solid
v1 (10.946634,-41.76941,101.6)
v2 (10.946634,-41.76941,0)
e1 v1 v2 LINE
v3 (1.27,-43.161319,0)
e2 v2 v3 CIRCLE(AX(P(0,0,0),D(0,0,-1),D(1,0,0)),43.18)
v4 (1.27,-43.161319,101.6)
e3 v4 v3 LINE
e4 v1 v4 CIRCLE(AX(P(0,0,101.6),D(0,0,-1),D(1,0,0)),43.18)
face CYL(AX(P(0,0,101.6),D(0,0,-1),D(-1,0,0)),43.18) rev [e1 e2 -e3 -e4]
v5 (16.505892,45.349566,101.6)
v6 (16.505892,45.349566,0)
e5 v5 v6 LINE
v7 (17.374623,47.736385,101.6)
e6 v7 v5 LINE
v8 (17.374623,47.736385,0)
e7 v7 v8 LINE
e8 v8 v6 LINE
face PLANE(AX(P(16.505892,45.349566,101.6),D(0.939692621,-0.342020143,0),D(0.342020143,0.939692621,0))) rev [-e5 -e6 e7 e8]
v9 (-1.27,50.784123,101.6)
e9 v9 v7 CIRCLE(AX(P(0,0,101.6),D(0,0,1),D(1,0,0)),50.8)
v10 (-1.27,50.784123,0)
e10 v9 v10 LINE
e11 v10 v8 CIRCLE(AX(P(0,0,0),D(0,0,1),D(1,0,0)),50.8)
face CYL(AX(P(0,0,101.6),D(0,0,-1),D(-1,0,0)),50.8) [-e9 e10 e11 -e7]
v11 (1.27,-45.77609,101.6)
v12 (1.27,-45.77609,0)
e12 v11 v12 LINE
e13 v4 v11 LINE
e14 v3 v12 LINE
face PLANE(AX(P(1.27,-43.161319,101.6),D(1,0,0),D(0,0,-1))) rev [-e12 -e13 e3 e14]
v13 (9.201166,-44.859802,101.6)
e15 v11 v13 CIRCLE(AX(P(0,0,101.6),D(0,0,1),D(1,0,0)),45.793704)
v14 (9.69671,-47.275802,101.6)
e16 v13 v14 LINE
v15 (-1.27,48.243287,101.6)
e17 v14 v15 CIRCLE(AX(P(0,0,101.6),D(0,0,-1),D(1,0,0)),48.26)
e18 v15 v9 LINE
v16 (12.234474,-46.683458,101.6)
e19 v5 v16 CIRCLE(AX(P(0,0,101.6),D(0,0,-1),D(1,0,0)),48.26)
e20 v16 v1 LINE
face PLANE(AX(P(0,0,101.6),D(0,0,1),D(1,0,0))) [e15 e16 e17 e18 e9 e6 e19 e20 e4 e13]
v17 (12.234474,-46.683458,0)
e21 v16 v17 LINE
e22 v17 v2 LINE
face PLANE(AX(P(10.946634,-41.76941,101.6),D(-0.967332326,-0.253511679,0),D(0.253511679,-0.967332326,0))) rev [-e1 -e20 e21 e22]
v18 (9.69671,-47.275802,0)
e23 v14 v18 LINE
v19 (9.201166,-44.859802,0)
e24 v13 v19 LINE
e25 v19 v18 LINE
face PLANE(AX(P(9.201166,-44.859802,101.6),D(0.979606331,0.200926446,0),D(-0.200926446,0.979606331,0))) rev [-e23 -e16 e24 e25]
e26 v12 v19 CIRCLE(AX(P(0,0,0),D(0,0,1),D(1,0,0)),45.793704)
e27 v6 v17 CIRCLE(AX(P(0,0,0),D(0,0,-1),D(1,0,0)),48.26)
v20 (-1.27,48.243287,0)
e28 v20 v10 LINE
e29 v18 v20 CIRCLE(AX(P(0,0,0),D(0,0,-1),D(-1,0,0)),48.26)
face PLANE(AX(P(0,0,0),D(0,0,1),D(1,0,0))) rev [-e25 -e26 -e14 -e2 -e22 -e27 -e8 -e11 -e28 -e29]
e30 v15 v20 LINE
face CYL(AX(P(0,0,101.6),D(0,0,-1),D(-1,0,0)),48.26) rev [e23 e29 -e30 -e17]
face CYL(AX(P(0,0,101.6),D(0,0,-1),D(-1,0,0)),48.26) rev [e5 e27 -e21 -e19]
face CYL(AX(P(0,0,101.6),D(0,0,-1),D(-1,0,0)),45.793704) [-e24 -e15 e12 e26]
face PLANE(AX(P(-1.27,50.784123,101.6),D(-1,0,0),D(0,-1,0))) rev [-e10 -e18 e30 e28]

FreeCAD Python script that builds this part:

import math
import FreeCAD as App
import Part
import Sketcher
from FreeCAD import Vector
Q = App.Units.Quantity

doc = App.newDocument("Part")
body = doc.addObject("PartDesign::Body", "Body")

# Sketch on XY plane
sketch1 = body.newObject("Sketcher::SketchObject", "Sketch")
sketch1.AttachmentSupport = (doc.getObject("XY_Plane"), [""])
sketch1.MapMode = "FlatFace"
sketch1.addGeometry(Part.LineSegment(Vector(-1.3, 48.2, 0), Vector(-1.3, 50.8, 0)), False)
sketch1.addGeometry(Part.ArcOfCircle(Part.Circle(Vector(0, 0, 0), Vector(0, 0, 1), 50.8), math.radians(91), math.radians(430)), False)
sketch1.addGeometry(Part.LineSegment(Vector(17.4, 47.7, 0), Vector(16.5, 45.3, 0)), False)
sketch1.addGeometry(Part.ArcOfCircle(Part.Circle(Vector(0, 0, 0), Vector(0, 0, 1), 48.3), math.radians(-75), math.radians(70)), False)
sketch1.addGeometry(Part.LineSegment(Vector(12.2, -46.7, 0), Vector(10.9, -41.8, 0)), False)
sketch1.addGeometry(Part.ArcOfCircle(Part.Circle(Vector(0, 0, 0), Vector(0, 0, 1), 43.2), math.radians(-88.31), math.radians(-75.31)), False)
sketch1.addGeometry(Part.LineSegment(Vector(1.3, -43.2, 0), Vector(1.3, -45.8, 0)), False)
sketch1.addGeometry(Part.ArcOfCircle(Part.Circle(Vector(0, 0, 0), Vector(0, 0, 1), 45.8), math.radians(-88.41), math.radians(-78.41)), False)
sketch1.addGeometry(Part.LineSegment(Vector(9.2, -44.9, 0), Vector(9.7, -47.3, 0)), False)
sketch1.addGeometry(Part.ArcOfCircle(Part.Circle(Vector(0, 0, 0), Vector(0, 0, 1), 48.3), math.radians(-90), math.radians(-78.41)), False)
sketch1.addGeometry(Part.ArcOfCircle(Part.Circle(Vector(0, 0, 0), Vector(0, 0, 1), 48.3), math.radians(92), math.radians(270)), False)
sketch1.addConstraint(Sketcher.Constraint("Coincident", 0, 2, 1, 1))
sketch1.addConstraint(Sketcher.Constraint("Coincident", 1, 2, 2, 1))
sketch1.addConstraint(Sketcher.Constraint("Coincident", 2, 2, 3, 2))
sketch1.addConstraint(Sketcher.Constraint("Coincident", 3, 1, 4, 1))
sketch1.addConstraint(Sketcher.Constraint("Coincident", 4, 2, 5, 2))
sketch1.addConstraint(Sketcher.Constraint("Coincident", 5, 1, 6, 1))
sketch1.addConstraint(Sketcher.Constraint("Coincident", 6, 2, 7, 1))
sketch1.addConstraint(Sketcher.Constraint("Coincident", 7, 2, 8, 1))
sketch1.addConstraint(Sketcher.Constraint("Coincident", 8, 2, 9, 2))
sketch1.addConstraint(Sketcher.Constraint("Tangent", 9, 1, 10, 2))
sketch1.addConstraint(Sketcher.Constraint("Coincident", 10, 1, 0, 1))
sketch1.addConstraint(Sketcher.Constraint("Vertical", 0))
sketch1.addConstraint(Sketcher.Constraint("Vertical", 6))
sketch1.addConstraint(Sketcher.Constraint("Coincident", 1, 3, -1, 1))
sketch1.addConstraint(Sketcher.Constraint("Coincident", 3, 3, -1, 1))
sketch1.addConstraint(Sketcher.Constraint("Coincident", 5, 3, -1, 1))
sketch1.addConstraint(Sketcher.Constraint("Coincident", 7, 3, -1, 1))
sketch1.addConstraint(Sketcher.Constraint("Coincident", 9, 3, -1, 1))
sketch1.addConstraint(Sketcher.Constraint("Equal", 3, 9))
sketch1.addConstraint(Sketcher.Constraint("Equal", 9, 10))
sketch1.addConstraint(Sketcher.Constraint("PointOnObject", 9, 1, -2))
sketch1.addConstraint(Sketcher.Constraint("Radius", 1, Q("2 in")))
sketch1.addConstraint(Sketcher.Constraint("Radius", 3, Q("1.9 in")))
sketch1.addConstraint(Sketcher.Constraint("Radius", 5, Q("1.7 in")))
sketch1.addConstraint(Sketcher.Constraint("Angle", 2, Q("-110 deg")))
sketch1.addConstraint(Sketcher.Constraint("DistanceX", 0, 2, -1, 1, Q("0.05 in")))
sketch1.addConstraint(Sketcher.Constraint("DistanceX", -1, 1, 5, 1, Q("0.05 in")))
sketch1.addConstraint(Sketcher.Constraint("Radius", 7, Q("45.793704 mm")))
sketch1.addConstraint(Sketcher.Constraint("DistanceY", 8, 2, -1, 1, Q("47.275802 mm")))
sketch1.addConstraint(Sketcher.Constraint("DistanceY", 8, 2, 7, 2, Q("2.415999 mm")))
sketch1.addConstraint(Sketcher.Constraint("DistanceY", 1, 2, 10, 1, Q("0.506901 mm")))
sketch1.addConstraint(Sketcher.Constraint("DistanceY", 3, 1, -1, 1, Q("46.683458 mm")))
sketch1.addConstraint(Sketcher.Constraint("DistanceY", 4, 2, -1, 1, Q("41.76941 mm")))
pad1 = body.newObject("PartDesign::Pad", "Pad")
pad1.Profile = sketch1
pad1.Length = Q("4 in")

doc.recompute()
